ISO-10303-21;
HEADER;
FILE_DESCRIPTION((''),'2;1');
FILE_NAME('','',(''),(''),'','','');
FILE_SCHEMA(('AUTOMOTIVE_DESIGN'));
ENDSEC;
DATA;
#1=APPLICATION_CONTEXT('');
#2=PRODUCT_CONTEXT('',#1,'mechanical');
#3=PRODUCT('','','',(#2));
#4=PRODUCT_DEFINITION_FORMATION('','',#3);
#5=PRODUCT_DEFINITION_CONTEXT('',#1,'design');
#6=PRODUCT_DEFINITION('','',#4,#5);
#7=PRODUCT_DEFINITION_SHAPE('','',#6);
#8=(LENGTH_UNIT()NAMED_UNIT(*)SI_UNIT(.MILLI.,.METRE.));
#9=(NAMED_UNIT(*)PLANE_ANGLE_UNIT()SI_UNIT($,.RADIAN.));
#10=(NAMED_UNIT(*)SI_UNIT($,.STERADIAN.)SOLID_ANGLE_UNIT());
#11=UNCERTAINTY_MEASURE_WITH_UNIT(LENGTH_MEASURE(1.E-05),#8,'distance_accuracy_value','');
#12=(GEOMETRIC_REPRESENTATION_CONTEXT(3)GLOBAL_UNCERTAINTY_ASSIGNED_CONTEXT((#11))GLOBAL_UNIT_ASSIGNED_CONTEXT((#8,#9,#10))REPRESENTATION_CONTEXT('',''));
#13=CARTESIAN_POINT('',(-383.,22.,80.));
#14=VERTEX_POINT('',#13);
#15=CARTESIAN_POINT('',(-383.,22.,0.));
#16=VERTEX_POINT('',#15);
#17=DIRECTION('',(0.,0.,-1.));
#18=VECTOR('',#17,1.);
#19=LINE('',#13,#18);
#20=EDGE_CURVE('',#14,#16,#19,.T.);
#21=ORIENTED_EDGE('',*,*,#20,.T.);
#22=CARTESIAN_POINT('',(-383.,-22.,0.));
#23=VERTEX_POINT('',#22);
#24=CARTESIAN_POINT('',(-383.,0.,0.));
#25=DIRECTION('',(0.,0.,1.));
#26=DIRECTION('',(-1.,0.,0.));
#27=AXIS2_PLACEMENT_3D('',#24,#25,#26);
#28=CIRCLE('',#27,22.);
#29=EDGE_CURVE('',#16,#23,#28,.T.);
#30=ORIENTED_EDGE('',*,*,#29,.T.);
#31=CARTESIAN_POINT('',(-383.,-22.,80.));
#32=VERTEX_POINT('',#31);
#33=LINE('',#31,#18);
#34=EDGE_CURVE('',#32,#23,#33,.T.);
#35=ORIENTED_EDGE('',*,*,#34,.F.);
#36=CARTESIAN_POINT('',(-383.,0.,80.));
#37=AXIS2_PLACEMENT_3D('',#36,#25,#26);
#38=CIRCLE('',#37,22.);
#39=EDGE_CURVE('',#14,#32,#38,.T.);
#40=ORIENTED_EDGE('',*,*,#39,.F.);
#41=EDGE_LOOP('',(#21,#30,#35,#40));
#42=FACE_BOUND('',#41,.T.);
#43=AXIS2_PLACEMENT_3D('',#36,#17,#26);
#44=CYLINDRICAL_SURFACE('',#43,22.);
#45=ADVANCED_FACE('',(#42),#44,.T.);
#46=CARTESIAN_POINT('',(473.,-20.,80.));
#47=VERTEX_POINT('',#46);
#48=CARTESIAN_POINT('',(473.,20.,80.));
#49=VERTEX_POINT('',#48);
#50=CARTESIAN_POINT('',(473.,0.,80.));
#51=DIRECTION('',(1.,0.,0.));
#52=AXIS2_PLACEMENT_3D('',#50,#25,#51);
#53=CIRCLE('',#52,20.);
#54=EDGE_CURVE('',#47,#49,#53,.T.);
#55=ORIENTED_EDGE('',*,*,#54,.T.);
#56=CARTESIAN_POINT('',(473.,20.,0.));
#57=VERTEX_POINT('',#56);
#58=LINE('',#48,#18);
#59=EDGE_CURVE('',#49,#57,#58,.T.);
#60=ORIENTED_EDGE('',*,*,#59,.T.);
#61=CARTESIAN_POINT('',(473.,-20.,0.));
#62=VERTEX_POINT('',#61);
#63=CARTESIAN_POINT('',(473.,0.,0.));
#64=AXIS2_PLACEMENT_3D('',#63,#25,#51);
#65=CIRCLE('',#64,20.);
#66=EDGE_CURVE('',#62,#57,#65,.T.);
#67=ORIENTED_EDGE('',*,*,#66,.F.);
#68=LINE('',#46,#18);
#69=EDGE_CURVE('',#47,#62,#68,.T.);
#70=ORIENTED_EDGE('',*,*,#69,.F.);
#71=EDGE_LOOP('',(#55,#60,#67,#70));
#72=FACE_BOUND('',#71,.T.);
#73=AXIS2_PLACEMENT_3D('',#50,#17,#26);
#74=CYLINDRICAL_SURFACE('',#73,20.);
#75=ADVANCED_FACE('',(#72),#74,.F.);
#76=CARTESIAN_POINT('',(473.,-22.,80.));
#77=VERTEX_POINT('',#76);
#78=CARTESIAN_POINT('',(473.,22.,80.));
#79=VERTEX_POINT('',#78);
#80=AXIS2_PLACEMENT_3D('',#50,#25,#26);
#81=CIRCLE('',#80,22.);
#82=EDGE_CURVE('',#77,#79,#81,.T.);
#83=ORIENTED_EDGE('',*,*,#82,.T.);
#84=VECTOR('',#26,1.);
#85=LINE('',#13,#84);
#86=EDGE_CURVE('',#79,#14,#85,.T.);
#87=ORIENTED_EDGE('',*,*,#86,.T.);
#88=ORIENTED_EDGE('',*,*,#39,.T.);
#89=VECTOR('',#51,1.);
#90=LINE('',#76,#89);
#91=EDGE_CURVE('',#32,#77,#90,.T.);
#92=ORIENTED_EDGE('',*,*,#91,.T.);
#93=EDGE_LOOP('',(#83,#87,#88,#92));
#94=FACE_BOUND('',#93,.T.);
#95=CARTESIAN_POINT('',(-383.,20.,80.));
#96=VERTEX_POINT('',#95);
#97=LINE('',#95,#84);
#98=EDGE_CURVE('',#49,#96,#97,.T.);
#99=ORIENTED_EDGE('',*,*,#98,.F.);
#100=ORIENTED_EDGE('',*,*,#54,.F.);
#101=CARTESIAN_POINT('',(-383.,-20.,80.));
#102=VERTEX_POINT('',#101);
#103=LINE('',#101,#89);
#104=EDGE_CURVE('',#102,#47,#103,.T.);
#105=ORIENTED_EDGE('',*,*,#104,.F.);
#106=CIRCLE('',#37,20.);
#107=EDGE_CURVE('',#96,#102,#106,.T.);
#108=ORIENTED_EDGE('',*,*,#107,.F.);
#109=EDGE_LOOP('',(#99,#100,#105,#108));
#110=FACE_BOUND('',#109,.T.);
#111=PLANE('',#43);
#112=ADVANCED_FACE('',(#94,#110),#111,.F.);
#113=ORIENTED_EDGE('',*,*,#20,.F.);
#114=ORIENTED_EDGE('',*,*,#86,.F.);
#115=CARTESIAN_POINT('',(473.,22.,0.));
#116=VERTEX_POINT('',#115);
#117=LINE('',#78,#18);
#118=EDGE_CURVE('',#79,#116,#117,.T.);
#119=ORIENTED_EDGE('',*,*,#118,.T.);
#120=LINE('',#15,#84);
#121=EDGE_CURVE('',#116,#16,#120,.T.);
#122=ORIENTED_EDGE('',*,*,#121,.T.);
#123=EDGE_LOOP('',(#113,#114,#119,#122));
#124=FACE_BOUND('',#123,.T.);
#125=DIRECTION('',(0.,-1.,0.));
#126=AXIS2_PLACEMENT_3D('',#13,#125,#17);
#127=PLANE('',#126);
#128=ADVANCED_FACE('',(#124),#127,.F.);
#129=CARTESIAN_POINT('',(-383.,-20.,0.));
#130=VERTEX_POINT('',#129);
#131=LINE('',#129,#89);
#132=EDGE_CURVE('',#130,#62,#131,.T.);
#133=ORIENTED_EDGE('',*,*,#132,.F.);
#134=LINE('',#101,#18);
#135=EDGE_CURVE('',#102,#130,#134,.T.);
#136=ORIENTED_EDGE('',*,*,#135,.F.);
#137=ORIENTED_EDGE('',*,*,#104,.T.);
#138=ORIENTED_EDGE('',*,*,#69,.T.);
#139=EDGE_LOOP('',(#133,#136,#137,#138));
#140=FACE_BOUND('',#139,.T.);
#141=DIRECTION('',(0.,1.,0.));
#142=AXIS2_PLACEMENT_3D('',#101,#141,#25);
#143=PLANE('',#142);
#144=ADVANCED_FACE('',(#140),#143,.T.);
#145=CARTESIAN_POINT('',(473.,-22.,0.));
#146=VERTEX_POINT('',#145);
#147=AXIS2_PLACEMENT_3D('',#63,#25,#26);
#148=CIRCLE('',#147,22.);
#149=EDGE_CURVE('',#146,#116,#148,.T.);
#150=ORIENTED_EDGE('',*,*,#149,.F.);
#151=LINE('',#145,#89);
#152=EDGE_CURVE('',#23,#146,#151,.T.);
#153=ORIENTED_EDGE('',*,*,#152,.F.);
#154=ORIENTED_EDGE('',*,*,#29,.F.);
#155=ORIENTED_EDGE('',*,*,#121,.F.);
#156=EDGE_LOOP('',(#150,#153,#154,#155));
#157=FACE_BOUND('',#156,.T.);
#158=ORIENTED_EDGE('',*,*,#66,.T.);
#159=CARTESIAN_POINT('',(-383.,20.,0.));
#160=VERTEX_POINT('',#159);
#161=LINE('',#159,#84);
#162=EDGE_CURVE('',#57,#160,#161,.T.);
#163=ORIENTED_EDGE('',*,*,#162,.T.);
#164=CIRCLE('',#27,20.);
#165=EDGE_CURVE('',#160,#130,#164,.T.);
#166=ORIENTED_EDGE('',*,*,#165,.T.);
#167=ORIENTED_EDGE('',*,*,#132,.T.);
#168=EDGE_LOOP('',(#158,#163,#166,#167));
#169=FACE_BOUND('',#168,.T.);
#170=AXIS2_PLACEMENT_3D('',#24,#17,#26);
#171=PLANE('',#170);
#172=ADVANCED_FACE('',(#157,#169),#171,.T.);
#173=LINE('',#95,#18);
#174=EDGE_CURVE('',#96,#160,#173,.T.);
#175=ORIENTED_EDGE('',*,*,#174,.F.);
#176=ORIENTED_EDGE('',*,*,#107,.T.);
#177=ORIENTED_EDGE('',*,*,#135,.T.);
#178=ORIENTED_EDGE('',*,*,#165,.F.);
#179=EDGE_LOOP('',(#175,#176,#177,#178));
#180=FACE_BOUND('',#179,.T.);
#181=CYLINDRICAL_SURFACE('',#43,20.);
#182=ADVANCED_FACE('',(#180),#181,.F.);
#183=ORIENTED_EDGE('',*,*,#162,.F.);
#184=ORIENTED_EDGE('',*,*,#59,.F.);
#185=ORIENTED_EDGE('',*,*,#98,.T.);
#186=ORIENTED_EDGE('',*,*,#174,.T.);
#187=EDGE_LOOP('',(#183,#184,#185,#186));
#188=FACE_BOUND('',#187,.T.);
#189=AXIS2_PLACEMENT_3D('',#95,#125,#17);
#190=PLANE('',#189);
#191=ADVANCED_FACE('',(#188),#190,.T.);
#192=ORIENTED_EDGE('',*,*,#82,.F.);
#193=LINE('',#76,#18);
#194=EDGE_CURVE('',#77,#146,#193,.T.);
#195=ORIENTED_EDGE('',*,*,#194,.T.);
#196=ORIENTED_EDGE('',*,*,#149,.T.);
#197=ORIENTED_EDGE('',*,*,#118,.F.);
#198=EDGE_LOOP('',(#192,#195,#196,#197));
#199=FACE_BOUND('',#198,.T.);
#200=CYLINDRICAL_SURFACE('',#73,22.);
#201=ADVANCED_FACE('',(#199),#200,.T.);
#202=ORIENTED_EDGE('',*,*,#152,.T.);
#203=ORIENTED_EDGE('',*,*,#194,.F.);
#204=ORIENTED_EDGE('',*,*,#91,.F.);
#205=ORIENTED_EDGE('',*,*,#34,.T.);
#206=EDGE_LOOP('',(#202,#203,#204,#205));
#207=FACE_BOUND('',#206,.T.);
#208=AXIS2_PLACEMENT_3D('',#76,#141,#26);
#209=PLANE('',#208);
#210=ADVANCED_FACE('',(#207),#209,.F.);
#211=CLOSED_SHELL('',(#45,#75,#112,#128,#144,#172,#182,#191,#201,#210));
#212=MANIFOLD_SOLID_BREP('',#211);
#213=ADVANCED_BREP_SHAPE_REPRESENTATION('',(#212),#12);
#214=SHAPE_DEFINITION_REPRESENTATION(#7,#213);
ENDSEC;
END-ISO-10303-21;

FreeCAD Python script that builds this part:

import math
import FreeCAD as App
import Part
import Sketcher

V = App.Vector
Q = App.Units.Quantity

doc = App.newDocument("Part")
body = doc.addObject("PartDesign::Body", "Body")

# Sketch on XY plane
sketch1 = doc.addObject("Sketcher::SketchObject", "Sketch")
body.addObject(sketch1)
sketch1.AttachmentSupport = (doc.XY_Plane, [""])
sketch1.MapMode = "FlatFace"
sketch1.addGeometry([
    Part.LineSegment(V(473, 22, 0), V(-383, 22, 0)),  # 0
    Part.ArcOfCircle(Part.Circle(V(-383, 0, 0), V(0, 0, 1), 22), math.radians(90), math.radians(270)),  # 1
    Part.LineSegment(V(-383, -22, 0), V(473, -22, 0)),  # 2
    Part.ArcOfCircle(Part.Circle(V(473, 0, 0), V(0, 0, 1), 22), math.radians(-90), math.radians(90)),  # 3
    Part.LineSegment(V(-383, 20, 0), V(473, 20, 0)),  # 4
    Part.ArcOfCircle(Part.Circle(V(473, 0, 0), V(0, 0, 1), 20), math.radians(-90), math.radians(90)),  # 5
    Part.LineSegment(V(473, -20, 0), V(-383, -20, 0)),  # 6
    Part.ArcOfCircle(Part.Circle(V(-383, 0, 0), V(0, 0, 1), 20), math.radians(90), math.radians(270)),  # 7
], False)
sketch1.addConstraint([
    Sketcher.Constraint("Tangent", 0, 2, 1, 1),
    Sketcher.Constraint("Tangent", 1, 2, 2, 1),
    Sketcher.Constraint("Tangent", 2, 2, 3, 1),
    Sketcher.Constraint("Tangent", 3, 2, 0, 1),
    Sketcher.Constraint("Tangent", 4, 2, 5, 2),
    Sketcher.Constraint("Tangent", 5, 1, 6, 1),
    Sketcher.Constraint("Tangent", 6, 2, 7, 2),
    Sketcher.Constraint("Tangent", 7, 1, 4, 1),
    Sketcher.Constraint("Horizontal", 0),
    Sketcher.Constraint("Horizontal", 2),
    Sketcher.Constraint("Horizontal", 4),
    Sketcher.Constraint("Horizontal", 6),
    Sketcher.Constraint("Coincident", 5, 3, 3, 3),
    Sketcher.Constraint("PointOnObject", 1, 3, -1),
    Sketcher.Constraint("Vertical", 7, 3, 0, 2),
    Sketcher.Constraint("Radius", 1, Q("22 mm")),
    Sketcher.Constraint("Radius", 5, Q("20 mm")),
    Sketcher.Constraint("DistanceX", 0, 2, 0, 1, Q("856 mm")),
    Sketcher.Constraint("DistanceX", 1, 3, -1, 1, Q("383 mm")),
])
pad1 = doc.addObject("PartDesign::Pad", "Pad")
body.addObject(pad1)
pad1.Profile = sketch1
pad1.Length = 80

doc.recompute()
